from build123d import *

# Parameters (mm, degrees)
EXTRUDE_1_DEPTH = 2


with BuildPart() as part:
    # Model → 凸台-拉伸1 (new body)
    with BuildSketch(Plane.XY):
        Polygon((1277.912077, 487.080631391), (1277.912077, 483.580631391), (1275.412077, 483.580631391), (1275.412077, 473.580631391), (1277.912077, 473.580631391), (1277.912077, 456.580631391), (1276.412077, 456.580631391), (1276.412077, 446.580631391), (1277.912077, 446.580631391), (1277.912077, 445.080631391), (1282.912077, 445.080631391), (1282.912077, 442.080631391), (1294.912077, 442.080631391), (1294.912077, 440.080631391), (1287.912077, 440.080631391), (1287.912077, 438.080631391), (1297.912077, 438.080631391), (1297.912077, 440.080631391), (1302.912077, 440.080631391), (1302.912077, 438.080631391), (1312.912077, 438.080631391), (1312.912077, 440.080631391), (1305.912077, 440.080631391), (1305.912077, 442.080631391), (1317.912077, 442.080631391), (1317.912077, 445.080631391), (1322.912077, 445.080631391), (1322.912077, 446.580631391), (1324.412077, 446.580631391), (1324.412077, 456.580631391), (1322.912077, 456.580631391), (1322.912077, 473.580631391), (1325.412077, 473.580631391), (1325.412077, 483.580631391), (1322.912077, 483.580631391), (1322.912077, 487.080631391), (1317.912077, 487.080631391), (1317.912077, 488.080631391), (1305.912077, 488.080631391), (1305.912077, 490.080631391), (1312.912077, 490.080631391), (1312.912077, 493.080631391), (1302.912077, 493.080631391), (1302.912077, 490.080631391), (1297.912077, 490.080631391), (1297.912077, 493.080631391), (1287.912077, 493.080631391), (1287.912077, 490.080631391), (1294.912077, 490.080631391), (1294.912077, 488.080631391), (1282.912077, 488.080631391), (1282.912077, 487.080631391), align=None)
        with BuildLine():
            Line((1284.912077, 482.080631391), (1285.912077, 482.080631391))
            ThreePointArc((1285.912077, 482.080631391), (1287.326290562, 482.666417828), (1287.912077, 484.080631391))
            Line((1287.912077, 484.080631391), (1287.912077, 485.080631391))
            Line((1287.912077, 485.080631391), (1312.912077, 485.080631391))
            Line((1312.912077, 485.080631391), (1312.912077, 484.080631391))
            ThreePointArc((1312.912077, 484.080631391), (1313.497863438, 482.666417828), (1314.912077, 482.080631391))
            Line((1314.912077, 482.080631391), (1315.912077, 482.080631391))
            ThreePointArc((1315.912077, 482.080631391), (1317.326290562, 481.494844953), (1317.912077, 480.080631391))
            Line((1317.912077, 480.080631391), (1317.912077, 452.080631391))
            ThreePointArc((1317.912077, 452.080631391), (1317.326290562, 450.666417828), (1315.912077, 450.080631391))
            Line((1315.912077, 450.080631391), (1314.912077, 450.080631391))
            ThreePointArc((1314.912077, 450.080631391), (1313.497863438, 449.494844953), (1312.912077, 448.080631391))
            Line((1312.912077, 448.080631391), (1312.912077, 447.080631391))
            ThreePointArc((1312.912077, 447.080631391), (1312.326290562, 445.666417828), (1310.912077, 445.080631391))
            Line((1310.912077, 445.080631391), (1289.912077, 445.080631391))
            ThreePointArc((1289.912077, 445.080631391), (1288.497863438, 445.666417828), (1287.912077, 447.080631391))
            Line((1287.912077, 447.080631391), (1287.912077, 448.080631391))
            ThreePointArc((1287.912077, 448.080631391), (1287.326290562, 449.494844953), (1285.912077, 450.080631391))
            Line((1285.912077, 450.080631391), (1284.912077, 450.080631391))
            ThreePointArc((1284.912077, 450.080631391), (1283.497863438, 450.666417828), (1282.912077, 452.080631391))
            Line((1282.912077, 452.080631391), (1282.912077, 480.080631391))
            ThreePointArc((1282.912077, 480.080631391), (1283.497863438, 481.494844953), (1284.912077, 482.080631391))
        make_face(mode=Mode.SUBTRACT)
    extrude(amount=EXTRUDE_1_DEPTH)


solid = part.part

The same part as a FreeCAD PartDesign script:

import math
import FreeCAD as App
import Part
import Sketcher

V = App.Vector

doc = App.newDocument("Part")
body = doc.addObject("PartDesign::Body", "Body")

# Sketch on XY plane
sketch1 = body.newObject("Sketcher::SketchObject", "Sketch")
sketch1.AttachmentSupport = (doc.getObject("XY_Plane"), [""])
sketch1.MapMode = "FlatFace"
sketch1.addGeometry(Part.LineSegment(V(1277.912077, 487.080631, 0), V(1277.912077, 483.580631, 0)), False)
sketch1.addGeometry(Part.LineSegment(V(1277.912077, 483.580631, 0), V(1275.412077, 483.580631, 0)), False)
sketch1.addGeometry(Part.LineSegment(V(1275.412077, 483.580631, 0), V(1275.412077, 473.580631, 0)), False)
sketch1.addGeometry(Part.LineSegment(V(1275.412077, 473.580631, 0), V(1277.912077, 473.580631, 0)), False)
sketch1.addGeometry(Part.LineSegment(V(1277.912077, 473.580631, 0), V(1277.912077, 456.580631, 0)), False)
sketch1.addGeometry(Part.LineSegment(V(1277.912077, 456.580631, 0), V(1276.412077, 456.580631, 0)), False)
sketch1.addGeometry(Part.LineSegment(V(1276.412077, 456.580631, 0), V(1276.412077, 446.580631, 0)), False)
sketch1.addGeometry(Part.LineSegment(V(1276.412077, 446.580631, 0), V(1277.912077, 446.580631, 0)), False)
sketch1.addGeometry(Part.LineSegment(V(1277.912077, 446.580631, 0), V(1277.912077, 445.080631, 0)), False)
sketch1.addGeometry(Part.LineSegment(V(1277.912077, 445.080631, 0), V(1282.912077, 445.080631, 0)), False)
sketch1.addGeometry(Part.LineSegment(V(1282.912077, 445.080631, 0), V(1282.912077, 442.080631, 0)), False)
sketch1.addGeometry(Part.LineSegment(V(1282.912077, 442.080631, 0), V(1294.912077, 442.080631, 0)), False)
sketch1.addGeometry(Part.LineSegment(V(1294.912077, 442.080631, 0), V(1294.912077, 440.080631, 0)), False)
sketch1.addGeometry(Part.LineSegment(V(1294.912077, 440.080631, 0), V(1287.912077, 440.080631, 0)), False)
sketch1.addGeometry(Part.LineSegment(V(1287.912077, 440.080631, 0), V(1287.912077, 438.080631, 0)), False)
sketch1.addGeometry(Part.LineSegment(V(1287.912077, 438.080631, 0), V(1297.912077, 438.080631, 0)), False)
sketch1.addGeometry(Part.LineSegment(V(1297.912077, 438.080631, 0), V(1297.912077, 440.080631, 0)), False)
sketch1.addGeometry(Part.LineSegment(V(1297.912077, 440.080631, 0), V(1302.912077, 440.080631, 0)), False)
sketch1.addGeometry(Part.LineSegment(V(1302.912077, 440.080631, 0), V(1302.912077, 438.080631, 0)), False)
sketch1.addGeometry(Part.LineSegment(V(1302.912077, 438.080631, 0), V(1312.912077, 438.080631, 0)), False)
sketch1.addGeometry(Part.LineSegment(V(1312.912077, 438.080631, 0), V(1312.912077, 440.080631, 0)), False)
sketch1.addGeometry(Part.LineSegment(V(1312.912077, 440.080631, 0), V(1305.912077, 440.080631, 0)), False)
sketch1.addGeometry(Part.LineSegment(V(1305.912077, 440.080631, 0), V(1305.912077, 442.080631, 0)), False)
sketch1.addGeometry(Part.LineSegment(V(1305.912077, 442.080631, 0), V(1317.912077, 442.080631, 0)), False)
sketch1.addGeometry(Part.LineSegment(V(1317.912077, 442.080631, 0), V(1317.912077, 445.080631, 0)), False)
sketch1.addGeometry(Part.LineSegment(V(1317.912077, 445.080631, 0), V(1322.912077, 445.080631, 0)), False)
sketch1.addGeometry(Part.LineSegment(V(1322.912077, 445.080631, 0), V(1322.912077, 446.580631, 0)), False)
sketch1.addGeometry(Part.LineSegment(V(1322.912077, 446.580631, 0), V(1324.412077, 446.580631, 0)), False)
sketch1.addGeometry(Part.LineSegment(V(1324.412077, 446.580631, 0), V(1324.412077, 456.580631, 0)), False)
sketch1.addGeometry(Part.LineSegment(V(1324.412077, 456.580631, 0), V(1322.912077, 456.580631, 0)), False)
sketch1.addGeometry(Part.LineSegment(V(1322.912077, 456.580631, 0), V(1322.912077, 473.580631, 0)), False)
sketch1.addGeometry(Part.LineSegment(V(1322.912077, 473.580631, 0), V(1325.412077, 473.580631, 0)), False)
sketch1.addGeometry(Part.LineSegment(V(1325.412077, 473.580631, 0), V(1325.412077, 483.580631, 0)), False)
sketch1.addGeometry(Part.LineSegment(V(1325.412077, 483.580631, 0), V(1322.912077, 483.580631, 0)), False)
sketch1.addGeometry(Part.LineSegment(V(1322.912077, 483.580631, 0), V(1322.912077, 487.080631, 0)), False)
sketch1.addGeometry(Part.LineSegment(V(1322.912077, 487.080631, 0), V(1317.912077, 487.080631, 0)), False)
sketch1.addGeometry(Part.LineSegment(V(1317.912077, 487.080631, 0), V(1317.912077, 488.080631, 0)), False)
sketch1.addGeometry(Part.LineSegment(V(1317.912077, 488.080631, 0), V(1305.912077, 488.080631, 0)), False)
sketch1.addGeometry(Part.LineSegment(V(1305.912077, 488.080631, 0), V(1305.912077, 490.080631, 0)), False)
sketch1.addGeometry(Part.LineSegment(V(1305.912077, 490.080631, 0), V(1312.912077, 490.080631, 0)), False)
sketch1.addGeometry(Part.LineSegment(V(1312.912077, 490.080631, 0), V(1312.912077, 493.080631, 0)), False)
sketch1.addGeometry(Part.LineSegment(V(1312.912077, 493.080631, 0), V(1302.912077, 493.080631, 0)), False)
sketch1.addGeometry(Part.LineSegment(V(1302.912077, 493.080631, 0), V(1302.912077, 490.080631, 0)), False)
sketch1.addGeometry(Part.LineSegment(V(1302.912077, 490.080631, 0), V(1297.912077, 490.080631, 0)), False)
sketch1.addGeometry(Part.LineSegment(V(1297.912077, 490.080631, 0), V(1297.912077, 493.080631, 0)), False)
sketch1.addGeometry(Part.LineSegment(V(1297.912077, 493.080631, 0), V(1287.912077, 493.080631, 0)), False)
sketch1.addGeometry(Part.LineSegment(V(1287.912077, 493.080631, 0), V(1287.912077, 490.080631, 0)), False)
sketch1.addGeometry(Part.LineSegment(V(1287.912077, 490.080631, 0), V(1294.912077, 490.080631, 0)), False)
sketch1.addGeometry(Part.LineSegment(V(1294.912077, 490.080631, 0), V(1294.912077, 488.080631, 0)), False)
sketch1.addGeometry(Part.LineSegment(V(1294.912077, 488.080631, 0), V(1282.912077, 488.080631, 0)), False)
sketch1.addGeometry(Part.LineSegment(V(1282.912077, 488.080631, 0), V(1282.912077, 487.080631, 0)), False)
sketch1.addGeometry(Part.LineSegment(V(1282.912077, 487.080631, 0), V(1277.912077, 487.080631, 0)), False)
sketch1.addGeometry(Part.ArcOfCircle(Part.Circle(V(1284.912077, 480.080631, 0), V(0, 0, 1), 2), math.radians(90), math.radians(180)), False)
sketch1.addGeometry(Part.LineSegment(V(1284.912077, 482.080631, 0), V(1285.912077, 482.080631, 0)), False)
sketch1.addGeometry(Part.ArcOfCircle(Part.Circle(V(1285.912077, 484.080631, 0), V(0, 0, 1), 2), math.radians(-90), math.radians(0)), False)
sketch1.addGeometry(Part.LineSegment(V(1287.912077, 484.080631, 0), V(1287.912077, 485.080631, 0)), False)
sketch1.addGeometry(Part.LineSegment(V(1287.912077, 485.080631, 0), V(1312.912077, 485.080631, 0)), False)
sketch1.addGeometry(Part.LineSegment(V(1312.912077, 485.080631, 0), V(1312.912077, 484.080631, 0)), False)
sketch1.addGeometry(Part.ArcOfCircle(Part.Circle(V(1314.912077, 484.080631, 0), V(0, 0, 1), 2), math.radians(180), math.radians(270)), False)
sketch1.addGeometry(Part.LineSegment(V(1314.912077, 482.080631, 0), V(1315.912077, 482.080631, 0)), False)
sketch1.addGeometry(Part.ArcOfCircle(Part.Circle(V(1315.912077, 480.080631, 0), V(0, 0, 1), 2), math.radians(0), math.radians(90)), False)
sketch1.addGeometry(Part.LineSegment(V(1317.912077, 480.080631, 0), V(1317.912077, 452.080631, 0)), False)
sketch1.addGeometry(Part.ArcOfCircle(Part.Circle(V(1315.912077, 452.080631, 0), V(0, 0, 1), 2), math.radians(-90), math.radians(0)), False)
sketch1.addGeometry(Part.LineSegment(V(1315.912077, 450.080631, 0), V(1314.912077, 450.080631, 0)), False)
sketch1.addGeometry(Part.ArcOfCircle(Part.Circle(V(1314.912077, 448.080631, 0), V(0, 0, 1), 2), math.radians(90), math.radians(180)), False)
sketch1.addGeometry(Part.LineSegment(V(1312.912077, 448.080631, 0), V(1312.912077, 447.080631, 0)), False)
sketch1.addGeometry(Part.ArcOfCircle(Part.Circle(V(1310.912077, 447.080631, 0), V(0, 0, 1), 2), math.radians(-90), math.radians(0)), False)
sketch1.addGeometry(Part.LineSegment(V(1310.912077, 445.080631, 0), V(1289.912077, 445.080631, 0)), False)
sketch1.addGeometry(Part.ArcOfCircle(Part.Circle(V(1289.912077, 447.080631, 0), V(0, 0, 1), 2), math.radians(180), math.radians(270)), False)
sketch1.addGeometry(Part.LineSegment(V(1287.912077, 447.080631, 0), V(1287.912077, 448.080631, 0)), False)
sketch1.addGeometry(Part.ArcOfCircle(Part.Circle(V(1285.912077, 448.080631, 0), V(0, 0, 1), 2), math.radians(0), math.radians(90)), False)
sketch1.addGeometry(Part.LineSegment(V(1285.912077, 450.080631, 0), V(1284.912077, 450.080631, 0)), False)
sketch1.addGeometry(Part.ArcOfCircle(Part.Circle(V(1284.912077, 452.080631, 0), V(0, 0, 1), 2), math.radians(180), math.radians(270)), False)
sketch1.addGeometry(Part.LineSegment(V(1282.912077, 452.080631, 0), V(1282.912077, 480.080631, 0)), False)
sketch1.addConstraint(Sketcher.Constraint("Coincident", 0, 2, 1, 1))
sketch1.addConstraint(Sketcher.Constraint("Coincident", 1, 2, 2, 1))
sketch1.addConstraint(Sketcher.Constraint("Coincident", 2, 2, 3, 1))
sketch1.addConstraint(Sketcher.Constraint("Coincident", 3, 2, 4, 1))
sketch1.addConstraint(Sketcher.Constraint("Coincident", 4, 2, 5, 1))
sketch1.addConstraint(Sketcher.Constraint("Coincident", 5, 2, 6, 1))
sketch1.addConstraint(Sketcher.Constraint("Coincident", 6, 2, 7, 1))
sketch1.addConstraint(Sketcher.Constraint("Coincident", 7, 2, 8, 1))
sketch1.addConstraint(Sketcher.Constraint("Coincident", 8, 2, 9, 1))
sketch1.addConstraint(Sketcher.Constraint("Coincident", 9, 2, 10, 1))
sketch1.addConstraint(Sketcher.Constraint("Coincident", 10, 2, 11, 1))
sketch1.addConstraint(Sketcher.Constraint("Coincident", 11, 2, 12, 1))
sketch1.addConstraint(Sketcher.Constraint("Coincident", 12, 2, 13, 1))
sketch1.addConstraint(Sketcher.Constraint("Coincident", 13, 2, 14, 1))
sketch1.addConstraint(Sketcher.Constraint("Coincident", 14, 2, 15, 1))
sketch1.addConstraint(Sketcher.Constraint("Coincident", 15, 2, 16, 1))
sketch1.addConstraint(Sketcher.Constraint("Coincident", 16, 2, 17, 1))
sketch1.addConstraint(Sketcher.Constraint("Coincident", 17, 2, 18, 1))
sketch1.addConstraint(Sketcher.Constraint("Coincident", 18, 2, 19, 1))
sketch1.addConstraint(Sketcher.Constraint("Coincident", 19, 2, 20, 1))
sketch1.addConstraint(Sketcher.Constraint("Coincident", 20, 2, 21, 1))
sketch1.addConstraint(Sketcher.Constraint("Coincident", 21, 2, 22, 1))
sketch1.addConstraint(Sketcher.Constraint("Coincident", 22, 2, 23, 1))
sketch1.addConstraint(Sketcher.Constraint("Coincident", 23, 2, 24, 1))
sketch1.addConstraint(Sketcher.Constraint("Coincident", 24, 2, 25, 1))
sketch1.addConstraint(Sketcher.Constraint("Coincident", 25, 2, 26, 1))
sketch1.addConstraint(Sketcher.Constraint("Coincident", 26, 2, 27, 1))
sketch1.addConstraint(Sketcher.Constraint("Coincident", 27, 2, 28, 1))
sketch1.addConstraint(Sketcher.Constraint("Coincident", 28, 2, 29, 1))
sketch1.addConstraint(Sketcher.Constraint("Coincident", 29, 2, 30, 1))
sketch1.addConstraint(Sketcher.Constraint("Coincident", 30, 2, 31, 1))
sketch1.addConstraint(Sketcher.Constraint("Coincident", 31, 2, 32, 1))
sketch1.addConstraint(Sketcher.Constraint("Coincident", 32, 2, 33, 1))
sketch1.addConstraint(Sketcher.Constraint("Coincident", 33, 2, 34, 1))
sketch1.addConstraint(Sketcher.Constraint("Coincident", 34, 2, 35, 1))
sketch1.addConstraint(Sketcher.Constraint("Coincident", 35, 2, 36, 1))
sketch1.addConstraint(Sketcher.Constraint("Coincident", 36, 2, 37, 1))
sketch1.addConstraint(Sketcher.Constraint("Coincident", 37, 2, 38, 1))
sketch1.addConstraint(Sketcher.Constraint("Coincident", 38, 2, 39, 1))
sketch1.addConstraint(Sketcher.Constraint("Coincident", 39, 2, 40, 1))
sketch1.addConstraint(Sketcher.Constraint("Coincident", 40, 2, 41, 1))
sketch1.addConstraint(Sketcher.Constraint("Coincident", 41, 2, 42, 1))
sketch1.addConstraint(Sketcher.Constraint("Coincident", 42, 2, 43, 1))
sketch1.addConstraint(Sketcher.Constraint("Coincident", 43, 2, 44, 1))
sketch1.addConstraint(Sketcher.Constraint("Coincident", 44, 2, 45, 1))
sketch1.addConstraint(Sketcher.Constraint("Coincident", 45, 2, 46, 1))
sketch1.addConstraint(Sketcher.Constraint("Coincident", 46, 2, 47, 1))
sketch1.addConstraint(Sketcher.Constraint("Coincident", 47, 2, 48, 1))
sketch1.addConstraint(Sketcher.Constraint("Coincident", 48, 2, 49, 1))
sketch1.addConstraint(Sketcher.Constraint("Coincident", 49, 2, 50, 1))
sketch1.addConstraint(Sketcher.Constraint("Coincident", 50, 2, 51, 1))
sketch1.addConstraint(Sketcher.Constraint("Coincident", 51, 2, 0, 1))
sketch1.addConstraint(Sketcher.Constraint("Tangent", 52, 1, 53, 1))
sketch1.addConstraint(Sketcher.Constraint("Tangent", 53, 2, 54, 1))
sketch1.addConstraint(Sketcher.Constraint("Tangent", 54, 2, 55, 1))
sketch1.addConstraint(Sketcher.Constraint("Coincident", 55, 2, 56, 1))
sketch1.addConstraint(Sketcher.Constraint("Coincident", 56, 2, 57, 1))
sketch1.addConstraint(Sketcher.Constraint("Tangent", 57, 2, 58, 1))
sketch1.addConstraint(Sketcher.Constraint("Tangent", 58, 2, 59, 1))
sketch1.addConstraint(Sketcher.Constraint("Tangent", 59, 2, 60, 2))
sketch1.addConstraint(Sketcher.Constraint("Tangent", 60, 1, 61, 1))
sketch1.addConstraint(Sketcher.Constraint("Tangent", 61, 2, 62, 2))
sketch1.addConstraint(Sketcher.Constraint("Tangent", 62, 1, 63, 1))
sketch1.addConstraint(Sketcher.Constraint("Tangent", 63, 2, 64, 1))
sketch1.addConstraint(Sketcher.Constraint("Tangent", 64, 2, 65, 1))
sketch1.addConstraint(Sketcher.Constraint("Tangent", 65, 2, 66, 2))
sketch1.addConstraint(Sketcher.Constraint("Tangent", 66, 1, 67, 1))
sketch1.addConstraint(Sketcher.Constraint("Tangent", 67, 2, 68, 2))
sketch1.addConstraint(Sketcher.Constraint("Tangent", 68, 1, 69, 1))
sketch1.addConstraint(Sketcher.Constraint("Tangent", 69, 2, 70, 1))
sketch1.addConstraint(Sketcher.Constraint("Tangent", 70, 2, 71, 1))
sketch1.addConstraint(Sketcher.Constraint("Tangent", 71, 2, 72, 2))
sketch1.addConstraint(Sketcher.Constraint("Tangent", 72, 1, 73, 1))
sketch1.addConstraint(Sketcher.Constraint("Tangent", 73, 2, 52, 2))
sketch1.addConstraint(Sketcher.Constraint("Vertical", 0))
sketch1.addConstraint(Sketcher.Constraint("Horizontal", 1))
sketch1.addConstraint(Sketcher.Constraint("Vertical", 2))
sketch1.addConstraint(Sketcher.Constraint("Horizontal", 3))
sketch1.addConstraint(Sketcher.Constraint("Vertical", 4))
sketch1.addConstraint(Sketcher.Constraint("Horizontal", 5))
sketch1.addConstraint(Sketcher.Constraint("Vertical", 6))
sketch1.addConstraint(Sketcher.Constraint("Horizontal", 7))
sketch1.addConstraint(Sketcher.Constraint("Vertical", 8))
sketch1.addConstraint(Sketcher.Constraint("Horizontal", 9))
sketch1.addConstraint(Sketcher.Constraint("Vertical", 10))
sketch1.addConstraint(Sketcher.Constraint("Horizontal", 11))
sketch1.addConstraint(Sketcher.Constraint("Vertical", 12))
sketch1.addConstraint(Sketcher.Constraint("Horizontal", 13))
sketch1.addConstraint(Sketcher.Constraint("Vertical", 14))
sketch1.addConstraint(Sketcher.Constraint("Horizontal", 15))
sketch1.addConstraint(Sketcher.Constraint("Vertical", 16))
sketch1.addConstraint(Sketcher.Constraint("Horizontal", 17))
sketch1.addConstraint(Sketcher.Constraint("Vertical", 18))
sketch1.addConstraint(Sketcher.Constraint("Horizontal", 19))
sketch1.addConstraint(Sketcher.Constraint("Vertical", 20))
sketch1.addConstraint(Sketcher.Constraint("Horizontal", 21))
sketch1.addConstraint(Sketcher.Constraint("Vertical", 22))
sketch1.addConstraint(Sketcher.Constraint("Horizontal", 23))
sketch1.addConstraint(Sketcher.Constraint("Vertical", 24))
sketch1.addConstraint(Sketcher.Constraint("Horizontal", 25))
sketch1.addConstraint(Sketcher.Constraint("Vertical", 26))
sketch1.addConstraint(Sketcher.Constraint("Horizontal", 27))
sketch1.addConstraint(Sketcher.Constraint("Vertical", 28))
sketch1.addConstraint(Sketcher.Constraint("Horizontal", 29))
sketch1.addConstraint(Sketcher.Constraint("Vertical", 30))
sketch1.addConstraint(Sketcher.Constraint("Horizontal", 31))
sketch1.addConstraint(Sketcher.Constraint("Vertical", 32))
sketch1.addConstraint(Sketcher.Constraint("Horizontal", 33))
sketch1.addConstraint(Sketcher.Constraint("Vertical", 34))
sketch1.addConstraint(Sketcher.Constraint("Horizontal", 35))
sketch1.addConstraint(Sketcher.Constraint("Vertical", 36))
sketch1.addConstraint(Sketcher.Constraint("Horizontal", 37))
sketch1.addConstraint(Sketcher.Constraint("Vertical", 38))
sketch1.addConstraint(Sketcher.Constraint("Horizontal", 39))
sketch1.addConstraint(Sketcher.Constraint("Vertical", 40))
sketch1.addConstraint(Sketcher.Constraint("Horizontal", 41))
sketch1.addConstraint(Sketcher.Constraint("Vertical", 42))
sketch1.addConstraint(Sketcher.Constraint("Horizontal", 43))
sketch1.addConstraint(Sketcher.Constraint("Vertical", 44))
sketch1.addConstraint(Sketcher.Constraint("Horizontal", 45))
sketch1.addConstraint(Sketcher.Constraint("Vertical", 46))
sketch1.addConstraint(Sketcher.Constraint("Horizontal", 47))
sketch1.addConstraint(Sketcher.Constraint("Vertical", 48))
sketch1.addConstraint(Sketcher.Constraint("Horizontal", 49))
sketch1.addConstraint(Sketcher.Constraint("Vertical", 50))
sketch1.addConstraint(Sketcher.Constraint("Horizontal", 51))
sketch1.addConstraint(Sketcher.Constraint("Horizontal", 53))
sketch1.addConstraint(Sketcher.Constraint("Vertical", 55))
sketch1.addConstraint(Sketcher.Constraint("Horizontal", 56))
sketch1.addConstraint(Sketcher.Constraint("Vertical", 57))
sketch1.addConstraint(Sketcher.Constraint("Horizontal", 59))
sketch1.addConstraint(Sketcher.Constraint("Vertical", 61))
sketch1.addConstraint(Sketcher.Constraint("Horizontal", 63))
sketch1.addConstraint(Sketcher.Constraint("Vertical", 65))
sketch1.addConstraint(Sketcher.Constraint("Horizontal", 67))
sketch1.addConstraint(Sketcher.Constraint("Vertical", 69))
sketch1.addConstraint(Sketcher.Constraint("Horizontal", 71))
sketch1.addConstraint(Sketcher.Constraint("Vertical", 73))
sketch1.addConstraint(Sketcher.Constraint("Equal", 52, 54))
sketch1.addConstraint(Sketcher.Constraint("Equal", 54, 58))
sketch1.addConstraint(Sketcher.Constraint("Equal", 58, 60))
sketch1.addConstraint(Sketcher.Constraint("Equal", 60, 62))
sketch1.addConstraint(Sketcher.Constraint("Equal", 62, 64))
sketch1.addConstraint(Sketcher.Constraint("Equal", 64, 66))
sketch1.addConstraint(Sketcher.Constraint("Equal", 66, 68))
sketch1.addConstraint(Sketcher.Constraint("Equal", 68, 70))
sketch1.addConstraint(Sketcher.Constraint("Equal", 70, 72))
sketch1.addConstraint(Sketcher.Constraint("Horizontal", 54, 3, 58, 3))
sketch1.addConstraint(Sketcher.Constraint("Horizontal", 64, 3, 70, 3))
sketch1.addConstraint(Sketcher.Constraint("Horizontal", 13, 2, 16, 2))
sketch1.addConstraint(Sketcher.Constraint("Horizontal", 15, 2, 18, 2))
sketch1.addConstraint(Sketcher.Constraint("Horizontal", 17, 2, 20, 2))
sketch1.addConstraint(Sketcher.Constraint("Horizontal", 11, 2, 22, 2))
sketch1.addConstraint(Sketcher.Constraint("Horizontal", 9, 2, 24, 2))
sketch1.addConstraint(Sketcher.Constraint("Horizontal", 7, 2, 26, 2))
sketch1.addConstraint(Sketcher.Constraint("Horizontal", 5, 2, 28, 2))
sketch1.addConstraint(Sketcher.Constraint("Horizontal", 3, 2, 30, 2))
sketch1.addConstraint(Sketcher.Constraint("Horizontal", 1, 2, 32, 2))
sketch1.addConstraint(Sketcher.Constraint("Horizontal", 39, 2, 42, 2))
sketch1.addConstraint(Sketcher.Constraint("Horizontal", 41, 2, 44, 2))
sketch1.addConstraint(Sketcher.Constraint("Horizontal", 43, 2, 46, 2))
sketch1.addConstraint(Sketcher.Constraint("Horizontal", 37, 2, 48, 2))
sketch1.addConstraint(Sketcher.Constraint("Horizontal", 35, 2, 50, 2))
sketch1.addConstraint(Sketcher.Constraint("Horizontal", 25, 2, 66, 1))
sketch1.addConstraint(Sketcher.Constraint("Vertical", 58, 3, 64, 3))
sketch1.addConstraint(Sketcher.Constraint("Vertical", 54, 3, 70, 3))
sketch1.addConstraint(Sketcher.Constraint("Vertical", 0, 2, 3, 2))
sketch1.addConstraint(Sketcher.Constraint("Vertical", 4, 2, 7, 2))
sketch1.addConstraint(Sketcher.Constraint("Vertical", 26, 2, 29, 2))
sketch1.addConstraint(Sketcher.Constraint("Vertical", 30, 2, 33, 2))
sketch1.addConstraint(Sketcher.Constraint("Vertical", 24, 2, 35, 2))
sketch1.addConstraint(Sketcher.Constraint("Vertical", 22, 2, 37, 2))
sketch1.addConstraint(Sketcher.Constraint("Vertical", 20, 2, 39, 2))
sketch1.addConstraint(Sketcher.Constraint("Vertical", 18, 2, 41, 2))
sketch1.addConstraint(Sketcher.Constraint("Vertical", 16, 2, 43, 2))
sketch1.addConstraint(Sketcher.Constraint("Vertical", 14, 2, 45, 2))
sketch1.addConstraint(Sketcher.Constraint("Vertical", 12, 2, 47, 2))
sketch1.addConstraint(Sketcher.Constraint("Vertical", 10, 2, 49, 2))
sketch1.addConstraint(Sketcher.Constraint("Vertical", 46, 2, 54, 2))
sketch1.addConstraint(Sketcher.Constraint("Vertical", 40, 2, 56, 2))
sketch1.addConstraint(Sketcher.Constraint("Vertical", 36, 2, 60, 1))
sketch1.addConstraint(Sketcher.Constraint("Vertical", 50, 2, 72, 1))
sketch1.addConstraint(Sketcher.Constraint("Equal", 9, 17))
sketch1.addConstraint(Sketcher.Constraint("Equal", 15, 19))
sketch1.addConstraint(Sketcher.Constraint("Equal", 13, 21))
sketch1.addConstraint(Sketcher.Constraint("Equal", 11, 23))
sketch1.addConstraint(Sketcher.Constraint("Equal", 17, 25))
sketch1.addConstraint(Sketcher.Constraint("Equal", 7, 27))
sketch1.addConstraint(Sketcher.Constraint("Equal", 3, 31))
sketch1.addConstraint(Sketcher.Constraint("Equal", 45, 2))
sketch1.addConstraint(Sketcher.Constraint("Equal", 2, 6))
sketch1.addConstraint(Sketcher.Constraint("Equal", 29, 8))
sketch1.addConstraint(Sketcher.Constraint("Equal", 12, 14))
sketch1.addConstraint(Sketcher.Constraint("Equal", 71, 36))
sketch1.addConstraint(Sketcher.Constraint("Equal", 22, 38))
sketch1.addConstraint(Sketcher.Constraint("Equal", 24, 40))
sketch1.addConstraint(Sketcher.Constraint("Equal", 50, 55))
sketch1.addConstraint(Sketcher.Constraint("Equal", 57, 65))
sketch1.addConstraint(Sketcher.Constraint("Radius", 52, 2.0))
sketch1.addConstraint(Sketcher.Constraint("DistanceX", 9, 1, 9, 2, 5.0))
sketch1.addConstraint(Sketcher.Constraint("DistanceX", 11, 1, 11, 2, 12.0))
sketch1.addConstraint(Sketcher.Constraint("DistanceX", 13, 2, 13, 1, 7.0))
sketch1.addConstraint(Sketcher.Constraint("DistanceX", 15, 1, 15, 2, 10.0))
sketch1.addConstraint(Sketcher.Constraint("DistanceY", 4, 2, 4, 1, 17.0))
sketch1.addConstraint(Sketcher.Constraint("DistanceY", 10, 2, 10, 1, 3.0))
sketch1.addConstraint(Sketcher.Constraint("DistanceY", 12, 2, 12, 1, 2.0))
sketch1.addConstraint(Sketcher.Constraint("DistanceY", 61, 2, 61, 1, 28.0))
sketch1.addConstraint(Sketcher.Constraint("DistanceX", 1, 2, 1, 1, 2.5))
sketch1.addConstraint(Sketcher.Constraint("DistanceX", 5, 2, 5, 1, 1.5))
sketch1.addConstraint(Sketcher.Constraint("DistanceY", 0, 2, 0, 1, 3.5))
sketch1.addConstraint(Sketcher.Constraint("DistanceY", -1, 1, 52, 3, 480.080631))
sketch1.addConstraint(Sketcher.Constraint("DistanceX", -1, 1, 52, 3, 1284.912077))
pad1 = body.newObject("PartDesign::Pad", "Pad")
pad1.Profile = sketch1
pad1.Length = 2

doc.recompute()
